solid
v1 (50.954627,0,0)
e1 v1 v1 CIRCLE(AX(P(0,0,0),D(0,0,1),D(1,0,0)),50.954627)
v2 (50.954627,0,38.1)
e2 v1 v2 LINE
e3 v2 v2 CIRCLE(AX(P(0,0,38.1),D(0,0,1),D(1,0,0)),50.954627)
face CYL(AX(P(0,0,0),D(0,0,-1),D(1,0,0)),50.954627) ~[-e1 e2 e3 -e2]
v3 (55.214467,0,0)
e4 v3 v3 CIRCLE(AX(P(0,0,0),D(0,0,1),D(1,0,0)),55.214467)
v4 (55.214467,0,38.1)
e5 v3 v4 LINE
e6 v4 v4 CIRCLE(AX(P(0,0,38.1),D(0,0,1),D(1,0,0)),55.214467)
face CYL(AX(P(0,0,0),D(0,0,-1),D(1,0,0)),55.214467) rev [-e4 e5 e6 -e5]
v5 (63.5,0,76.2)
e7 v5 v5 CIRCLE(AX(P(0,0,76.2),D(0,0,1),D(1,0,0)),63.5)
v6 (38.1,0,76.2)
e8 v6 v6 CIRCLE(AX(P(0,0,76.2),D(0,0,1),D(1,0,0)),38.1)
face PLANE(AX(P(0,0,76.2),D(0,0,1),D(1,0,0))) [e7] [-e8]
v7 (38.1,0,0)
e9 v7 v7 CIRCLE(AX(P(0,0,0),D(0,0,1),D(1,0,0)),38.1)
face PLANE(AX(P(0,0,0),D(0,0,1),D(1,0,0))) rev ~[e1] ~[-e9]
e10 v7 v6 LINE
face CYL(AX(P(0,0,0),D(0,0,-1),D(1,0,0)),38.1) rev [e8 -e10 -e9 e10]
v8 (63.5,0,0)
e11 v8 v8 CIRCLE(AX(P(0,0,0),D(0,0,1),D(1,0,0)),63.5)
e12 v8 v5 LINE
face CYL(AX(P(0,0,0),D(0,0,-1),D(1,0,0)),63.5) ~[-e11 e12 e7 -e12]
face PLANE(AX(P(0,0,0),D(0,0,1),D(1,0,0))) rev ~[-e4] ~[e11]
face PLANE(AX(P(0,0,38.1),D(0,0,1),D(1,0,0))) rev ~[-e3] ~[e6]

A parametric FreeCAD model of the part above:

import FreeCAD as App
import Part
import Sketcher

V = App.Vector
Q = App.Units.Quantity

doc = App.newDocument("Part")
body = doc.addObject("PartDesign::Body", "Body")

# Sketch on XY plane
sketch1 = body.newObject("Sketcher::SketchObject", "Sketch")
sketch1.AttachmentSupport = (doc.getObject("XY_Plane"), [""])
sketch1.MapMode = "FlatFace"
sketch1.addGeometry(Part.Circle(V(0, 0, 0), V(0, 0, 1), 64), False)
sketch1.addGeometry(Part.Circle(V(0, 0, 0), V(0, 0, 1), 38), False)
sketch1.addConstraint(Sketcher.Constraint("Coincident", 0, 3, -1, 1))
sketch1.addConstraint(Sketcher.Constraint("Coincident", 1, 3, -1, 1))
sketch1.addConstraint(Sketcher.Constraint("Diameter", 0, Q("5 in")))
sketch1.addConstraint(Sketcher.Constraint("Diameter", 1, Q("3 in")))
pad1 = body.newObject("PartDesign::Pad", "Pad")
pad1.Profile = sketch1
pad1.Length = Q("3 in")

# Sketch on XY plane
sketch2 = body.newObject("Sketcher::SketchObject", "Sketch001")
sketch2.AttachmentSupport = (doc.getObject("XY_Plane"), [""])
sketch2.MapMode = "FlatFace"
sketch2.addGeometry(Part.Circle(V(0, 0, 0), V(0, 0, 1), 55), False)
sketch2.addGeometry(Part.Circle(V(0, 0, 0), V(0, 0, 1), 51), False)
sketch2.addConstraint(Sketcher.Constraint("Coincident", 0, 3, -1, 1))
sketch2.addConstraint(Sketcher.Constraint("Coincident", 1, 3, -1, 1))
sketch2.addConstraint(Sketcher.Constraint("Diameter", 0, Q("110.428934 mm")))
sketch2.addConstraint(Sketcher.Constraint("Diameter", 1, Q("101.909254 mm")))
pocket1 = body.newObject("PartDesign::Pocket", "Pocket")
pocket1.Profile = sketch2
pocket1.Length = Q("1.5 in")
pocket1.Reversed = True

doc.recompute()
